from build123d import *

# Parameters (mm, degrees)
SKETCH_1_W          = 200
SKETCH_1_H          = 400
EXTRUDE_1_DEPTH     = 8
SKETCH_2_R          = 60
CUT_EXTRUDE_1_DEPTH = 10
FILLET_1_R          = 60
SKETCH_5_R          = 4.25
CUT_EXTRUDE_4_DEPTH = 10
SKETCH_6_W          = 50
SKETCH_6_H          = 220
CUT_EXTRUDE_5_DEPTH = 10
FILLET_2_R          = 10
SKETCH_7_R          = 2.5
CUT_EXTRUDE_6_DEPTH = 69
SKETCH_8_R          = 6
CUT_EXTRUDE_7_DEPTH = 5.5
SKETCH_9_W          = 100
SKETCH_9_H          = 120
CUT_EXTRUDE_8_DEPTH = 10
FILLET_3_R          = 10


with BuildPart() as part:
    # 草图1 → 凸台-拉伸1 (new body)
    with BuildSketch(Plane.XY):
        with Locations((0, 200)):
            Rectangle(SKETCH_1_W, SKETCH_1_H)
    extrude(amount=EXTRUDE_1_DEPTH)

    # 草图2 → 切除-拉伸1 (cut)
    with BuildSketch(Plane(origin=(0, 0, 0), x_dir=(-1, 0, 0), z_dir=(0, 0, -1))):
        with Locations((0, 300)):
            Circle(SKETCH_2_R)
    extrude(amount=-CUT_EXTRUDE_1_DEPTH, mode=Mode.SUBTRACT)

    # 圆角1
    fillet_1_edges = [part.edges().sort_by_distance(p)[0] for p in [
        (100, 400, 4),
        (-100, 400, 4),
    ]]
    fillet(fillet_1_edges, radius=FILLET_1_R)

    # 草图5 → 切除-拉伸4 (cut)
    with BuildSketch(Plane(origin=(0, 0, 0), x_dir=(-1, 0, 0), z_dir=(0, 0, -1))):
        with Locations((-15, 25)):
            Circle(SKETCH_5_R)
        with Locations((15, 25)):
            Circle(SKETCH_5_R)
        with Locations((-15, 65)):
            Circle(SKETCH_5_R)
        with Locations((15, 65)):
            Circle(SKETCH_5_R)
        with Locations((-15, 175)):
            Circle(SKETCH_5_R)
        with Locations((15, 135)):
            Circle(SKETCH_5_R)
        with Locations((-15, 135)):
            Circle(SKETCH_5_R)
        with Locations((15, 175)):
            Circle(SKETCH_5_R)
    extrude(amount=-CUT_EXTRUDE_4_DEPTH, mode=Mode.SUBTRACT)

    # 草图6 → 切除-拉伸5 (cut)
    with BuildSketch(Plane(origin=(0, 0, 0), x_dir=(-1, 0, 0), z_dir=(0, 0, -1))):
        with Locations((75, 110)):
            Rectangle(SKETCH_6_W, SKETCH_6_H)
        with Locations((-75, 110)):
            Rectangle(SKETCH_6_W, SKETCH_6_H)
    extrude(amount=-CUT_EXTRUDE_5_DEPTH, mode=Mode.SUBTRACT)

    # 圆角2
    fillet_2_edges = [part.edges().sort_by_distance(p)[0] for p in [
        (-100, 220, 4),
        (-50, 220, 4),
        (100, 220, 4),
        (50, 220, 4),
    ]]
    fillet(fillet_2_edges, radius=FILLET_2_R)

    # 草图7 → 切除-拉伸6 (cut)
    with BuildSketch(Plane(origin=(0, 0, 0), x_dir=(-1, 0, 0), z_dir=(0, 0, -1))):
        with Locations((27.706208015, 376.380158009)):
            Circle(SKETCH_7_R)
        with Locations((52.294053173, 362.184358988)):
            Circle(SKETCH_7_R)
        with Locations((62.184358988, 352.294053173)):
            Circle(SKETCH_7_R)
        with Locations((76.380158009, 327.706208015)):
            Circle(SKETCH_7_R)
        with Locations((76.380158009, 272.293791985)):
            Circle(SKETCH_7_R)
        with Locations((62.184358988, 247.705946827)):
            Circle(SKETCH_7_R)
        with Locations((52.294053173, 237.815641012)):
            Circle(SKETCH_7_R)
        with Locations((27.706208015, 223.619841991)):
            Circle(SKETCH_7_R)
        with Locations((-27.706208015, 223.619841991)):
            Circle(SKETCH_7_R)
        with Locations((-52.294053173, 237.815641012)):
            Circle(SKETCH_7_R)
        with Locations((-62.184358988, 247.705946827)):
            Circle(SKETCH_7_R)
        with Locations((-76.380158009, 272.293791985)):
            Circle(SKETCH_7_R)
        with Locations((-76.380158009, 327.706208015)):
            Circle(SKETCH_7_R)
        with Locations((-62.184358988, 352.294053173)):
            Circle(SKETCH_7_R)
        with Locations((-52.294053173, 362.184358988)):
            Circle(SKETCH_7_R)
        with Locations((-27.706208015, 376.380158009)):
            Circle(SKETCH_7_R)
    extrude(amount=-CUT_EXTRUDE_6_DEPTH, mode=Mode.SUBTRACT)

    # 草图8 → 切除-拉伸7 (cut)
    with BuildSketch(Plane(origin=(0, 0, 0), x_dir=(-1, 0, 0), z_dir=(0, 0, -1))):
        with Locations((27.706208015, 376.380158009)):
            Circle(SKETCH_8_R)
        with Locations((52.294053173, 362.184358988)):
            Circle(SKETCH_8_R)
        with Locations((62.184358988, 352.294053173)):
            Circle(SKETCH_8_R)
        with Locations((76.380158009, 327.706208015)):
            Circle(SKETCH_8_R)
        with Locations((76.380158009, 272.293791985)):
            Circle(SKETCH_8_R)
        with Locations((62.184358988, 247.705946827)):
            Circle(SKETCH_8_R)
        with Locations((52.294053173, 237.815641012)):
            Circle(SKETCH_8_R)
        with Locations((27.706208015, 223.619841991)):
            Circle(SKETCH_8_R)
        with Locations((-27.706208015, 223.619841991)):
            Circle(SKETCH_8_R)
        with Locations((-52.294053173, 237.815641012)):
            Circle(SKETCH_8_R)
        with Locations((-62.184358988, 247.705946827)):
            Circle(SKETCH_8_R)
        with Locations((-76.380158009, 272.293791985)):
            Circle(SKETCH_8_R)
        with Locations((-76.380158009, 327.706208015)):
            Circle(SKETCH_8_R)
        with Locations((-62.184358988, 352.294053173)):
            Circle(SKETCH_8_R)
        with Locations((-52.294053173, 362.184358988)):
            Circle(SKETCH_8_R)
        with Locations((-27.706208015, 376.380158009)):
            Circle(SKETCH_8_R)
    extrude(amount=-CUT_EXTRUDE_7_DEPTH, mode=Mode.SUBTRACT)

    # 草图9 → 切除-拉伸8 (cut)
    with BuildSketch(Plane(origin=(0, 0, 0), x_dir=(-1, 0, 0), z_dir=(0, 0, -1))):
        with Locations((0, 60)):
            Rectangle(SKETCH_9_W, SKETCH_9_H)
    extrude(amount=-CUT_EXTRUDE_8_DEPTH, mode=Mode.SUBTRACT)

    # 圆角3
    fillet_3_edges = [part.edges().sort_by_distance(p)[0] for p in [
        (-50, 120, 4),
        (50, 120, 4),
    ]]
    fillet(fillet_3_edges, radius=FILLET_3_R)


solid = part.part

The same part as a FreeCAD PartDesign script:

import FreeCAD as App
import Part
import Sketcher

V = App.Vector


def edges_at(feature, points):
    """Names of the edges that pass closest to the given points."""
    edges = feature.Shape.Edges
    near = lambda p: min(range(len(edges)), key=lambda i: edges[i].distToShape(Part.Vertex(*p))[0])
    return sorted({f"Edge{near(p) + 1}" for p in points})


def add_polygon(sketch, points):
    """Adds a closed chain of lines whose ends are joined by coincident constraints."""
    first, n = sketch.GeometryCount, len(points)
    for a, b in zip(points, points[1:] + points[:1]):
        sketch.addGeometry(Part.LineSegment(App.Vector(*a, 0), App.Vector(*b, 0)), False)
    for i in range(n):
        sketch.addConstraint(Sketcher.Constraint("Coincident", first + i, 2, first + (i + 1) % n, 1))

doc = App.newDocument("Part")
body = doc.addObject("PartDesign::Body", "Body")

# Sketch on XY plane
sketch1 = doc.addObject("Sketcher::SketchObject", "Sketch")
body.addObject(sketch1)
sketch1.AttachmentSupport = (doc.XY_Plane, [""])
sketch1.MapMode = "FlatFace"
add_polygon(sketch1, [(-100, 400), (-100, 0), (100, 0), (100, 400)])  # lines 0-3
sketch1.addConstraint([
    Sketcher.Constraint("Vertical", 0),
    Sketcher.Constraint("Horizontal", 1),
    Sketcher.Constraint("Vertical", 2),
    Sketcher.Constraint("Horizontal", 3),
    Sketcher.Constraint("Symmetric", 0, 2, 1, 2, -1, 1),
    Sketcher.Constraint("DistanceX", 1, 1, 1, 2, 200.0),
    Sketcher.Constraint("DistanceY", 0, 2, 0, 1, 400.0),
])
pad1 = doc.addObject("PartDesign::Pad", "Pad")
body.addObject(pad1)
pad1.Profile = sketch1
pad1.Length = 8

# Sketch on XY plane
sketch2 = doc.addObject("Sketcher::SketchObject", "Sketch001")
body.addObject(sketch2)
sketch2.AttachmentSupport = (doc.XY_Plane, [""])
sketch2.MapMode = "FlatFace"
sketch2.addGeometry(Part.Circle(V(0, 300, 0), V(0, 0, 1), 60), False)
sketch2.addConstraint([
    Sketcher.Constraint("PointOnObject", 0, 3, -2),
    Sketcher.Constraint("Diameter", 0, 120.0),
    Sketcher.Constraint("DistanceY", -1, 1, 0, 3, 300.0),
])
pocket1 = doc.addObject("PartDesign::Pocket", "Pocket")
body.addObject(pocket1)
pocket1.Profile = sketch2
pocket1.Length = 10
pocket1.Reversed = True
doc.recompute()

fillet = doc.addObject("PartDesign::Fillet", "Fillet")
body.addObject(fillet)
fillet.Base = (pocket1, edges_at(pocket1, [(100, 400, 4), (-100, 400, 4)]))
fillet.Radius = 60

# Sketch on XY plane
sketch3 = doc.addObject("Sketcher::SketchObject", "Sketch002")
body.addObject(sketch3)
sketch3.AttachmentSupport = (doc.XY_Plane, [""])
sketch3.MapMode = "FlatFace"
sketch3.addGeometry([
    Part.Circle(V(15, 25, 0), V(0, 0, 1), 4.2),  # 0
    Part.Circle(V(-15, 25, 0), V(0, 0, 1), 4.2),  # 1
    Part.Circle(V(15, 65, 0), V(0, 0, 1), 4.2),  # 2
    Part.Circle(V(-15, 65, 0), V(0, 0, 1), 4.2),  # 3
    Part.Circle(V(15, 175, 0), V(0, 0, 1), 4.2),  # 4
    Part.Circle(V(-15, 135, 0), V(0, 0, 1), 4.2),  # 5
    Part.Circle(V(15, 135, 0), V(0, 0, 1), 4.2),  # 6
    Part.Circle(V(-15, 175, 0), V(0, 0, 1), 4.2),  # 7
], False)
sketch3.addConstraint([
    Sketcher.Constraint("Equal", 0, 1),
    Sketcher.Constraint("Equal", 1, 2),
    Sketcher.Constraint("Equal", 2, 3),
    Sketcher.Constraint("Equal", 3, 4),
    Sketcher.Constraint("Equal", 4, 5),
    Sketcher.Constraint("Equal", 5, 6),
    Sketcher.Constraint("Equal", 6, 7),
    Sketcher.Constraint("Symmetric", 0, 3, 1, 3, -2),
    Sketcher.Constraint("Symmetric", 2, 3, 3, 3, -2),
    Sketcher.Constraint("Symmetric", 5, 3, 6, 3, -2),
    Sketcher.Constraint("Symmetric", 4, 3, 7, 3, -2),
    Sketcher.Constraint("Vertical", 0, 3, 2, 3),
    Sketcher.Constraint("Vertical", 2, 3, 4, 3),
    Sketcher.Constraint("Vertical", 3, 3, 5, 3),
    Sketcher.Constraint("Diameter", 0, 8.5),
    Sketcher.Constraint("DistanceX", -1, 1, 0, 3, 15.0),
    Sketcher.Constraint("DistanceY", -1, 1, 0, 3, 25.0),
    Sketcher.Constraint("DistanceY", -1, 1, 2, 3, 65.0),
    Sketcher.Constraint("DistanceY", -1, 1, 4, 3, 175.0),
    Sketcher.Constraint("DistanceY", -1, 1, 5, 3, 135.0),
])
pocket2 = doc.addObject("PartDesign::Pocket", "Pocket001")
body.addObject(pocket2)
pocket2.Profile = sketch3
pocket2.Length = 10
pocket2.Reversed = True

# Sketch on XY plane
sketch4 = doc.addObject("Sketcher::SketchObject", "Sketch003")
body.addObject(sketch4)
sketch4.AttachmentSupport = (doc.XY_Plane, [""])
sketch4.MapMode = "FlatFace"
add_polygon(sketch4, [(-50, 220), (-50, 0), (-100, 0), (-100, 220)])  # lines 0-3
add_polygon(sketch4, [(100, 220), (100, 0), (50, 0), (50, 220)])  # lines 4-7
sketch4.addConstraint([
    Sketcher.Constraint("Vertical", 0),
    Sketcher.Constraint("Horizontal", 1),
    Sketcher.Constraint("Vertical", 2),
    Sketcher.Constraint("Horizontal", 3),
    Sketcher.Constraint("Vertical", 4),
    Sketcher.Constraint("Horizontal", 5),
    Sketcher.Constraint("Vertical", 6),
    Sketcher.Constraint("Horizontal", 7),
    Sketcher.Constraint("Symmetric", 1, 2, 4, 2, -1, 1),
    Sketcher.Constraint("Symmetric", 0, 2, 5, 2, -2),
    Sketcher.Constraint("Horizontal", 3, 2, 6, 2),
    Sketcher.Constraint("DistanceX", 1, 2, 1, 1, 50.0),
    Sketcher.Constraint("DistanceY", 0, 2, 0, 1, 220.0),
    Sketcher.Constraint("DistanceX", 0, 2, -1, 1, 50.0),
])
pocket3 = doc.addObject("PartDesign::Pocket", "Pocket002")
body.addObject(pocket3)
pocket3.Profile = sketch4
pocket3.Length = 10
pocket3.Reversed = True
doc.recompute()

fillet2 = doc.addObject("PartDesign::Fillet", "Fillet001")
body.addObject(fillet2)
fillet2.Base = (pocket3, edges_at(pocket3, [
    (-100, 220, 4),
    (-50, 220, 4),
    (100, 220, 4),
    (50, 220, 4),
]))
fillet2.Radius = 10

# Sketch on XY plane
sketch5 = doc.addObject("Sketcher::SketchObject", "Sketch004")
body.addObject(sketch5)
sketch5.AttachmentSupport = (doc.XY_Plane, [""])
sketch5.MapMode = "FlatFace"
sketch5.addGeometry([
    Part.Circle(V(-27.7, 376.4, 0), V(0, 0, 1), 2.5),  # 0
    Part.Circle(V(-52.3, 362.2, 0), V(0, 0, 1), 2.5),  # 1
    Part.Circle(V(-62.2, 352.3, 0), V(0, 0, 1), 2.5),  # 2
    Part.Circle(V(-76.4, 327.7, 0), V(0, 0, 1), 2.5),  # 3
    Part.Circle(V(-76.4, 272.3, 0), V(0, 0, 1), 2.5),  # 4
    Part.Circle(V(-62.2, 247.7, 0), V(0, 0, 1), 2.5),  # 5
    Part.Circle(V(-52.3, 237.8, 0), V(0, 0, 1), 2.5),  # 6
    Part.Circle(V(-27.7, 223.6, 0), V(0, 0, 1), 2.5),  # 7
    Part.Circle(V(27.7, 223.6, 0), V(0, 0, 1), 2.5),  # 8
    Part.Circle(V(52.3, 237.8, 0), V(0, 0, 1), 2.5),  # 9
    Part.Circle(V(62.2, 247.7, 0), V(0, 0, 1), 2.5),  # 10
    Part.Circle(V(76.4, 272.3, 0), V(0, 0, 1), 2.5),  # 11
    Part.Circle(V(76.4, 327.7, 0), V(0, 0, 1), 2.5),  # 12
    Part.Circle(V(62.2, 352.3, 0), V(0, 0, 1), 2.5),  # 13
    Part.Circle(V(52.3, 362.2, 0), V(0, 0, 1), 2.5),  # 14
    Part.Circle(V(27.7, 376.4, 0), V(0, 0, 1), 2.5),  # 15
], False)
sketch5.addConstraint([
    Sketcher.Constraint("Equal", 0, 1),
    Sketcher.Constraint("Equal", 1, 2),
    Sketcher.Constraint("Equal", 2, 3),
    Sketcher.Constraint("Equal", 3, 4),
    Sketcher.Constraint("Equal", 4, 5),
    Sketcher.Constraint("Equal", 5, 6),
    Sketcher.Constraint("Equal", 6, 7),
    Sketcher.Constraint("Equal", 7, 8),
    Sketcher.Constraint("Equal", 8, 9),
    Sketcher.Constraint("Equal", 9, 10),
    Sketcher.Constraint("Equal", 10, 11),
    Sketcher.Constraint("Equal", 11, 12),
    Sketcher.Constraint("Equal", 12, 13),
    Sketcher.Constraint("Equal", 13, 14),
    Sketcher.Constraint("Equal", 14, 15),
    Sketcher.Constraint("Symmetric", 7, 3, 8, 3, -2),
    Sketcher.Constraint("Symmetric", 6, 3, 9, 3, -2),
    Sketcher.Constraint("Symmetric", 5, 3, 10, 3, -2),
    Sketcher.Constraint("Symmetric", 4, 3, 11, 3, -2),
    Sketcher.Constraint("Symmetric", 3, 3, 12, 3, -2),
    Sketcher.Constraint("Symmetric", 2, 3, 13, 3, -2),
    Sketcher.Constraint("Symmetric", 1, 3, 14, 3, -2),
    Sketcher.Constraint("Symmetric", 0, 3, 15, 3, -2),
    Sketcher.Constraint("Vertical", 3, 3, 4, 3),
    Sketcher.Constraint("Vertical", 2, 3, 5, 3),
    Sketcher.Constraint("Vertical", 1, 3, 6, 3),
    Sketcher.Constraint("Vertical", 0, 3, 7, 3),
    Sketcher.Constraint("Diameter", 0, 5.0),
    Sketcher.Constraint("DistanceY", 1, 3, 0, 3, 14.195799),
    Sketcher.Constraint("DistanceX", 3, 3, 2, 3, 14.195799),
    Sketcher.Constraint("DistanceY", 7, 3, 6, 3, 14.195799),
    Sketcher.Constraint("DistanceX", 0, 3, -1, 1, 27.706208),
    Sketcher.Constraint("DistanceY", -1, 1, 0, 3, 376.380158),
    Sketcher.Constraint("DistanceX", 2, 3, -1, 1, 62.184359),
    Sketcher.Constraint("DistanceY", -1, 1, 3, 3, 327.706208),
    Sketcher.Constraint("DistanceY", -1, 1, 4, 3, 272.293792),
    Sketcher.Constraint("DistanceY", -1, 1, 6, 3, 237.815641),
    Sketcher.Constraint("DistanceY", 4, 3, 2, 3, 80.000261),
    Sketcher.Constraint("DistanceY", 5, 3, 3, 3, 80.000261),
    Sketcher.Constraint("DistanceX", 6, 3, 8, 3, 80.000261),
])
pocket4 = doc.addObject("PartDesign::Pocket", "Pocket003")
body.addObject(pocket4)
pocket4.Profile = sketch5
pocket4.Length = 69
pocket4.Reversed = True

# Sketch on XY plane
sketch6 = doc.addObject("Sketcher::SketchObject", "Sketch005")
body.addObject(sketch6)
sketch6.AttachmentSupport = (doc.XY_Plane, [""])
sketch6.MapMode = "FlatFace"
sketch6.addGeometry([
    Part.Circle(V(-28, 376, 0), V(0, 0, 1), 6),  # 0
    Part.Circle(V(-52, 362, 0), V(0, 0, 1), 6),  # 1
    Part.Circle(V(-62, 352, 0), V(0, 0, 1), 6),  # 2
    Part.Circle(V(-76, 328, 0), V(0, 0, 1), 6),  # 3
    Part.Circle(V(-76, 272, 0), V(0, 0, 1), 6),  # 4
    Part.Circle(V(-62, 248, 0), V(0, 0, 1), 6),  # 5
    Part.Circle(V(-52, 238, 0), V(0, 0, 1), 6),  # 6
    Part.Circle(V(-28, 224, 0), V(0, 0, 1), 6),  # 7
    Part.Circle(V(28, 224, 0), V(0, 0, 1), 6),  # 8
    Part.Circle(V(52, 238, 0), V(0, 0, 1), 6),  # 9
    Part.Circle(V(62, 248, 0), V(0, 0, 1), 6),  # 10
    Part.Circle(V(76, 272, 0), V(0, 0, 1), 6),  # 11
    Part.Circle(V(76, 328, 0), V(0, 0, 1), 6),  # 12
    Part.Circle(V(62, 352, 0), V(0, 0, 1), 6),  # 13
    Part.Circle(V(52, 362, 0), V(0, 0, 1), 6),  # 14
    Part.Circle(V(28, 376, 0), V(0, 0, 1), 6),  # 15
], False)
sketch6.addConstraint([
    Sketcher.Constraint("Equal", 0, 1),
    Sketcher.Constraint("Equal", 1, 2),
    Sketcher.Constraint("Equal", 2, 3),
    Sketcher.Constraint("Equal", 3, 4),
    Sketcher.Constraint("Equal", 4, 5),
    Sketcher.Constraint("Equal", 5, 6),
    Sketcher.Constraint("Equal", 6, 7),
    Sketcher.Constraint("Equal", 7, 8),
    Sketcher.Constraint("Equal", 8, 9),
    Sketcher.Constraint("Equal", 9, 10),
    Sketcher.Constraint("Equal", 10, 11),
    Sketcher.Constraint("Equal", 11, 12),
    Sketcher.Constraint("Equal", 12, 13),
    Sketcher.Constraint("Equal", 13, 14),
    Sketcher.Constraint("Equal", 14, 15),
    Sketcher.Constraint("Symmetric", 7, 3, 8, 3, -2),
    Sketcher.Constraint("Symmetric", 6, 3, 9, 3, -2),
    Sketcher.Constraint("Symmetric", 5, 3, 10, 3, -2),
    Sketcher.Constraint("Symmetric", 4, 3, 11, 3, -2),
    Sketcher.Constraint("Symmetric", 3, 3, 12, 3, -2),
    Sketcher.Constraint("Symmetric", 2, 3, 13, 3, -2),
    Sketcher.Constraint("Symmetric", 1, 3, 14, 3, -2),
    Sketcher.Constraint("Symmetric", 0, 3, 15, 3, -2),
    Sketcher.Constraint("Vertical", 3, 3, 4, 3),
    Sketcher.Constraint("Vertical", 2, 3, 5, 3),
    Sketcher.Constraint("Vertical", 1, 3, 6, 3),
    Sketcher.Constraint("Vertical", 0, 3, 7, 3),
    Sketcher.Constraint("Diameter", 0, 12.0),
    Sketcher.Constraint("DistanceY", 1, 3, 0, 3, 14.195799),
    Sketcher.Constraint("DistanceX", 3, 3, 2, 3, 14.195799),
    Sketcher.Constraint("DistanceY", 7, 3, 6, 3, 14.195799),
    Sketcher.Constraint("DistanceX", 0, 3, -1, 1, 27.706208),
    Sketcher.Constraint("DistanceY", -1, 1, 0, 3, 376.380158),
    Sketcher.Constraint("DistanceX", 2, 3, -1, 1, 62.184359),
    Sketcher.Constraint("DistanceY", -1, 1, 3, 3, 327.706208),
    Sketcher.Constraint("DistanceY", -1, 1, 4, 3, 272.293792),
    Sketcher.Constraint("DistanceY", -1, 1, 6, 3, 237.815641),
    Sketcher.Constraint("DistanceY", 4, 3, 2, 3, 80.000261),
    Sketcher.Constraint("DistanceY", 5, 3, 3, 3, 80.000261),
    Sketcher.Constraint("DistanceX", 6, 3, 8, 3, 80.000261),
])
pocket5 = doc.addObject("PartDesign::Pocket", "Pocket004")
body.addObject(pocket5)
pocket5.Profile = sketch6
pocket5.Length = 5.5
pocket5.Reversed = True

# Sketch on XY plane
sketch7 = doc.addObject("Sketcher::SketchObject", "Sketch006")
body.addObject(sketch7)
sketch7.AttachmentSupport = (doc.XY_Plane, [""])
sketch7.MapMode = "FlatFace"
add_polygon(sketch7, [(50, 120), (50, 0), (-50, 0), (-50, 120)])  # lines 0-3
sketch7.addConstraint([
    Sketcher.Constraint("Vertical", 0),
    Sketcher.Constraint("Horizontal", 1),
    Sketcher.Constraint("Vertical", 2),
    Sketcher.Constraint("Horizontal", 3),
    Sketcher.Constraint("Symmetric", 0, 2, 1, 2, -1, 1),
    Sketcher.Constraint("DistanceX", 1, 2, 1, 1, 100.0),
    Sketcher.Constraint("DistanceY", 0, 2, 0, 1, 120.0),
])
pocket6 = doc.addObject("PartDesign::Pocket", "Pocket005")
body.addObject(pocket6)
pocket6.Profile = sketch7
pocket6.Length = 10
pocket6.Reversed = True
doc.recompute()

fillet3 = doc.addObject("PartDesign::Fillet", "Fillet002")
body.addObject(fillet3)
fillet3.Base = (pocket6, edges_at(pocket6, [(-50, 120, 4), (50, 120, 4)]))
fillet3.Radius = 10

doc.recompute()
